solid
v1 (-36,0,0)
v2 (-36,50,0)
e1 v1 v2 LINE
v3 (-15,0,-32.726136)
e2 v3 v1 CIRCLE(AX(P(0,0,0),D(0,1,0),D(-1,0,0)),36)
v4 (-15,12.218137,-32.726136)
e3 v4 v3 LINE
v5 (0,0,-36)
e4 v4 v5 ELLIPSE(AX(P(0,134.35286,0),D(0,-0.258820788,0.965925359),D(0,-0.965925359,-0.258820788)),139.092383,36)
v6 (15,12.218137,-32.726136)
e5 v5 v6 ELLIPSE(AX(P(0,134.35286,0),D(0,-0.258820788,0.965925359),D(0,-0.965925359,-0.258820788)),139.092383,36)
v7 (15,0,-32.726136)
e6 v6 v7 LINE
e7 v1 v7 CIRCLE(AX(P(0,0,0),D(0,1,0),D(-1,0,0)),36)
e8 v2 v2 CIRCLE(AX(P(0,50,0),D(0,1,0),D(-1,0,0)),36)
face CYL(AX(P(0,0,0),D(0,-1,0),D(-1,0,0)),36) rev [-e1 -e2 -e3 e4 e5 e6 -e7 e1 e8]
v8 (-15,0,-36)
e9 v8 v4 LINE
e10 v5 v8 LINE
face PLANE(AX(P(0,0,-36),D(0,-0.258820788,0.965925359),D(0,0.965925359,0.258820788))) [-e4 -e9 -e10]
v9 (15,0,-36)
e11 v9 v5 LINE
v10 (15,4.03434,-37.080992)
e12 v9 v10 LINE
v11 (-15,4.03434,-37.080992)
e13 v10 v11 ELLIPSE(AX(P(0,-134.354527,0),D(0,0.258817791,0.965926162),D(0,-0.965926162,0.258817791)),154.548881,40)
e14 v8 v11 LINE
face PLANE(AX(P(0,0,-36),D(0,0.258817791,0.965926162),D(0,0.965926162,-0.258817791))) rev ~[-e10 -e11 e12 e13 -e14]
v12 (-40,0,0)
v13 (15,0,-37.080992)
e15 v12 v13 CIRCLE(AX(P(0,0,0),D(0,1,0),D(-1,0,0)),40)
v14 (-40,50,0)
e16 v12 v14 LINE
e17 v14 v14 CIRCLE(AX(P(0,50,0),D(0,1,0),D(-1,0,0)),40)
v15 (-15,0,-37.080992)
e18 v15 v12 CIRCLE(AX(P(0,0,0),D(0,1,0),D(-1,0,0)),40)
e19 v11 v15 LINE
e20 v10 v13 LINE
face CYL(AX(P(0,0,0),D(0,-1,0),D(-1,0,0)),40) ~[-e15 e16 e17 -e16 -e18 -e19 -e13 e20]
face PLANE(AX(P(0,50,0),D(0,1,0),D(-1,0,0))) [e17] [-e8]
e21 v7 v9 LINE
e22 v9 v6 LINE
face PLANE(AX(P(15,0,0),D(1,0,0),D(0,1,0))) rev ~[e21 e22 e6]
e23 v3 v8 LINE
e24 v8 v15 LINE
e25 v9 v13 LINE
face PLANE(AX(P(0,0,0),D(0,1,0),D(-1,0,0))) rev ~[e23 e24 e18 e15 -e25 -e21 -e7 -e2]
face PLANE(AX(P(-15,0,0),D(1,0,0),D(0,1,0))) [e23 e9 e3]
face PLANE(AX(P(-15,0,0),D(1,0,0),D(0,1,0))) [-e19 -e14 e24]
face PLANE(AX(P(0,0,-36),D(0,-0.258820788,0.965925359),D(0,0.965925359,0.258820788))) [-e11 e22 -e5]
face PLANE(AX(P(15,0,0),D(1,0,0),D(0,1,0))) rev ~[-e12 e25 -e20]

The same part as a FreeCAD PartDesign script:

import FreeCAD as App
import Part
import Sketcher
from FreeCAD import Vector
Q = App.Units.Quantity


def add_polygon(sketch, points):
    """Adds a closed chain of lines whose ends are joined by coincident constraints."""
    first, n = sketch.GeometryCount, len(points)
    for a, b in zip(points, points[1:] + points[:1]):
        sketch.addGeometry(Part.LineSegment(App.Vector(*a, 0), App.Vector(*b, 0)), False)
    for i in range(n):
        sketch.addConstraint(Sketcher.Constraint("Coincident", first + i, 2, first + (i + 1) % n, 1))

doc = App.newDocument("Part")
body = doc.addObject("PartDesign::Body", "Body")

# Sketch on XZ plane
sketch1 = body.newObject("Sketcher::SketchObject", "Sketch")
sketch1.AttachmentSupport = (doc.getObject("XZ_Plane"), [""])
sketch1.MapMode = "FlatFace"
sketch1.addGeometry([
    Part.Circle(Vector(0, 0, 0), Vector(0, 0, 1), 40),
    Part.Circle(Vector(0, 0, 0), Vector(0, 0, 1), 36),
], False)
sketch1.addConstraint([
    Sketcher.Constraint("Coincident", 0, 3, -1, 1),
    Sketcher.Constraint("Coincident", 1, 3, -1, 1),
    Sketcher.Constraint("Diameter", 0, 80.0),
    Sketcher.Constraint("Diameter", 1, 72.0),
])
pad1 = body.newObject("PartDesign::Pad", "Pad")
pad1.Profile = sketch1
pad1.Length = 50
pad1.Reversed = True

# Sketch on YZ plane
sketch2 = body.newObject("Sketcher::SketchObject", "Sketch001")
sketch2.AttachmentSupport = (doc.getObject("YZ_Plane"), [""])
sketch2.MapMode = "FlatFace"
add_polygon(sketch2, [(19.4, -30.8), (-2.5, -30.8), (-2.5, -42.4), (20.8, -42.4), (20.8, -41.6), (0, -36)])  # lines 0-5
sketch2.addConstraint([
    Sketcher.Constraint("Horizontal", 0),
    Sketcher.Constraint("Vertical", 1),
    Sketcher.Constraint("Horizontal", 2),
    Sketcher.Constraint("Vertical", 3),
    Sketcher.Constraint("PointOnObject", 4, 2, -2),
    Sketcher.Constraint("Angle", 5, Q("15 deg")),
    Sketcher.Constraint("Angle", 4, Q("165 deg")),
    Sketcher.Constraint("DistanceY", 4, 2, -1, 1, 36.0),
    Sketcher.Constraint("DistanceX", 2, 1, 2, 2, 23.285),
    Sketcher.Constraint("DistanceY", 1, 2, 1, 1, 11.563),
    Sketcher.Constraint("DistanceY", 1, 2, -1, 1, 42.37),
    Sketcher.Constraint("DistanceX", -1, 1, 2, 2, 20.82),
])
pocket1 = body.newObject("PartDesign::Pocket", "Pocket")
pocket1.Profile = sketch2
pocket1.Length = 30
pocket1.Midplane = True

doc.recompute()
